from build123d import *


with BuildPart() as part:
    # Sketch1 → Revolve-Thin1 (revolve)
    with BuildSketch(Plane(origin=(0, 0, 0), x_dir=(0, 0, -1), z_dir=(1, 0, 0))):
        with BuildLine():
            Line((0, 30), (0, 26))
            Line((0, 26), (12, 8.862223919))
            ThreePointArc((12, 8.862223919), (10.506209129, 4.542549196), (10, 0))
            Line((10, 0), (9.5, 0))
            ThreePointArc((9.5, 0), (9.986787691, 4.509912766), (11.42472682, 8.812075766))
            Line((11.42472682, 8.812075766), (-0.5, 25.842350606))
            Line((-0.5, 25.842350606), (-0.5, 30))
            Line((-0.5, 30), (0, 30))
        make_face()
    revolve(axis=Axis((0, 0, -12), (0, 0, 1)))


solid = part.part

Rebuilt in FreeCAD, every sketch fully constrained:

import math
import FreeCAD as App
import Part
import Sketcher

V = App.Vector
Q = App.Units.Quantity

doc = App.newDocument("Part")
params = doc.addObject("Spreadsheet::Sheet", "Params")
for row, (alias, value) in enumerate([
    ("sketch1_width", "4 mm"),
    ("sketch1_height", "0.5 mm"),
    ("revolution_angle", "360 deg"),
], start=1):
    params.set(f"A{row}", alias)
    params.set(f"B{row}", "=" + value)
    params.setAlias(f"B{row}", alias)

body = doc.addObject("PartDesign::Body", "Body")

# Sketch on YZ plane
sketch1 = body.newObject("Sketcher::SketchObject", "Sketch")
sketch1.AttachmentSupport = (doc.getObject("YZ_Plane"), [""])
sketch1.MapMode = "FlatFace"
sketch1.addGeometry([
    Part.LineSegment(V(26, 0, 0), V(30, 0, 0)),  # 0
    Part.LineSegment(V(30, 0, 0), V(30, 0.5, 0)),  # 1
    Part.LineSegment(V(30, 0.5, 0), V(25.842351, 0.5, 0)),  # 2
    Part.LineSegment(V(25.842351, 0.5, 0), V(8.812076, -11.424727, 0)),  # 3
    Part.ArcOfCircle(Part.Circle(V(0, -30.634753, 0), V(0, 0, 1), 21.134753), math.radians(65.358), math.radians(90)),  # 4
    Part.LineSegment(V(0, -9.5, 0), V(0, -10, 0)),  # 5
    Part.ArcOfCircle(Part.Circle(V(0, -30.634753, 0), V(0, 0, 1), 20.634753), math.radians(64.565405), math.radians(90)),  # 6
    Part.LineSegment(V(8.862224, -12, 0), V(26, 0, 0)),  # 7
], False)
sketch1.addConstraint([
    Sketcher.Constraint("Coincident", 0, 2, 1, 1),
    Sketcher.Constraint("Coincident", 1, 2, 2, 1),
    Sketcher.Constraint("Coincident", 2, 2, 3, 1),
    Sketcher.Constraint("Coincident", 3, 2, 4, 1),
    Sketcher.Constraint("Coincident", 4, 2, 5, 1),
    Sketcher.Constraint("Coincident", 5, 2, 6, 2),
    Sketcher.Constraint("Coincident", 6, 1, 7, 1),
    Sketcher.Constraint("Coincident", 7, 2, 0, 1),
    Sketcher.Constraint("Horizontal", 0),
    Sketcher.Constraint("Vertical", 1),
    Sketcher.Constraint("Horizontal", 2),
    Sketcher.Constraint("Vertical", 5),
    Sketcher.Constraint("Coincident", 6, 3, 4, 3),
    Sketcher.Constraint("PointOnObject", 4, 3, -2),
    Sketcher.Constraint("PointOnObject", 0, 2, -1),
    Sketcher.Constraint("PointOnObject", 4, 2, -2),
    Sketcher.Constraint("Parallel", 3, 7),
    Sketcher.Constraint("Equal", 1, 5),
    Sketcher.Constraint("DistanceX", 0, 1, 0, 2, Q("4 mm")),
    Sketcher.Constraint("Angle", 3, Q("-145 deg")),
    Sketcher.Constraint("DistanceY", 1, 1, 1, 2, Q("0.5 mm")),
    Sketcher.Constraint("DistanceX", -1, 1, 0, 2, Q("30 mm")),
    Sketcher.Constraint("DistanceY", 5, 2, -1, 1, Q("10 mm")),
    Sketcher.Constraint("DistanceY", 6, 1, -1, 1, Q("12 mm")),
    Sketcher.Constraint("DistanceX", 2, 2, 2, 1, Q("4.157649 mm")),
])
sketch1.setExpression("Constraints[18]", "Params.sketch1_width")
sketch1.setExpression("Constraints[20]", "Params.sketch1_height")
revolution = body.newObject("PartDesign::Revolution", "Revolution")
revolution.Profile = sketch1
revolution.ReferenceAxis = (sketch1, ["V_Axis"])
revolution.setExpression("Angle", "Params.revolution_angle")

doc.recompute()
